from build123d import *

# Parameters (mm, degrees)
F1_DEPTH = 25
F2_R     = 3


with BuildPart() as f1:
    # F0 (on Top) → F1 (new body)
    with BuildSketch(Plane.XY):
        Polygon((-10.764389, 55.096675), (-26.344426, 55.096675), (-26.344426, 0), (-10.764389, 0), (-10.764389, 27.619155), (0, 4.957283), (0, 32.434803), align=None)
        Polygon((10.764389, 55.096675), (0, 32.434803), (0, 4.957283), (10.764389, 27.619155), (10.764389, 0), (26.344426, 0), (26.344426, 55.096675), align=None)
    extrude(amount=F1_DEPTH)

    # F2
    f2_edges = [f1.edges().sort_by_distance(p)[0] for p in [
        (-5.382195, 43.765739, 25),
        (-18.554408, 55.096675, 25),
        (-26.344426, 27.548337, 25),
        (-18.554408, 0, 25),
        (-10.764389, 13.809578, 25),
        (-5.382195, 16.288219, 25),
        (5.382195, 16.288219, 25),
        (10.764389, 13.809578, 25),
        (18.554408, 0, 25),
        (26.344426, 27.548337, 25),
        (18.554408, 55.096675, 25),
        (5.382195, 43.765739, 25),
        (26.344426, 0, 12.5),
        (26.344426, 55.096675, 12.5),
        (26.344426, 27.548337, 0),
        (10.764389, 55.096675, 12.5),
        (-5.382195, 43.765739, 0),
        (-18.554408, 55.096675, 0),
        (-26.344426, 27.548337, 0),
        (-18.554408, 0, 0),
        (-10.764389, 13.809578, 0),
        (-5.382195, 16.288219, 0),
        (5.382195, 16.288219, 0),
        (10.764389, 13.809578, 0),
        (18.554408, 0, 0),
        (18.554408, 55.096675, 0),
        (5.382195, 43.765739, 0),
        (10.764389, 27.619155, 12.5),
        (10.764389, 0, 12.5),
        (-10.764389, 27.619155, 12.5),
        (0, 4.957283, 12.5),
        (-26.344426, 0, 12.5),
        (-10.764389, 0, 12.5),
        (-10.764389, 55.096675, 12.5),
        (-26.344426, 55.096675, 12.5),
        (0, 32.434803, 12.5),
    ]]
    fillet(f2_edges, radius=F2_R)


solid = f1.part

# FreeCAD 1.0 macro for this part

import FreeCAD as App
import Part
import Sketcher

V = App.Vector

doc = App.newDocument("Part")
body = doc.addObject("PartDesign::Body", "Body")

# Sketch on XY plane
sketch1 = body.newObject("Sketcher::SketchObject", "Sketch")
sketch1.AttachmentSupport = (doc.getObject("XY_Plane"), [""])
sketch1.MapMode = "FlatFace"
sketch1.addGeometry(Part.LineSegment(V(-11, 55, 0), V(-26, 55, 0)), False)
sketch1.addGeometry(Part.LineSegment(V(-26, 55, 0), V(-26, 0, 0)), False)
sketch1.addGeometry(Part.LineSegment(V(-26, 0, 0), V(-11, 0, 0)), False)
sketch1.addGeometry(Part.LineSegment(V(-11, 0, 0), V(-11, 28, 0)), False)
sketch1.addGeometry(Part.LineSegment(V(-11, 28, 0), V(0, 5, 0)), False)
sketch1.addGeometry(Part.LineSegment(V(0, 5, 0), V(11, 28, 0)), False)
sketch1.addGeometry(Part.LineSegment(V(11, 28, 0), V(11, 0, 0)), False)
sketch1.addGeometry(Part.LineSegment(V(11, 0, 0), V(26, 0, 0)), False)
sketch1.addGeometry(Part.LineSegment(V(26, 0, 0), V(26, 55, 0)), False)
sketch1.addGeometry(Part.LineSegment(V(26, 55, 0), V(11, 55, 0)), False)
sketch1.addGeometry(Part.LineSegment(V(11, 55, 0), V(0, 32, 0)), False)
sketch1.addGeometry(Part.LineSegment(V(0, 32, 0), V(-11, 55, 0)), False)
sketch1.addConstraint(Sketcher.Constraint("Coincident", 0, 2, 1, 1))
sketch1.addConstraint(Sketcher.Constraint("Coincident", 1, 2, 2, 1))
sketch1.addConstraint(Sketcher.Constraint("Coincident", 2, 2, 3, 1))
sketch1.addConstraint(Sketcher.Constraint("Coincident", 3, 2, 4, 1))
sketch1.addConstraint(Sketcher.Constraint("Coincident", 4, 2, 5, 1))
sketch1.addConstraint(Sketcher.Constraint("Coincident", 5, 2, 6, 1))
sketch1.addConstraint(Sketcher.Constraint("Coincident", 6, 2, 7, 1))
sketch1.addConstraint(Sketcher.Constraint("Coincident", 7, 2, 8, 1))
sketch1.addConstraint(Sketcher.Constraint("Coincident", 8, 2, 9, 1))
sketch1.addConstraint(Sketcher.Constraint("Coincident", 9, 2, 10, 1))
sketch1.addConstraint(Sketcher.Constraint("Coincident", 10, 2, 11, 1))
sketch1.addConstraint(Sketcher.Constraint("Coincident", 11, 2, 0, 1))
sketch1.addConstraint(Sketcher.Constraint("Horizontal", 0))
sketch1.addConstraint(Sketcher.Constraint("Vertical", 1))
sketch1.addConstraint(Sketcher.Constraint("Horizontal", 2))
sketch1.addConstraint(Sketcher.Constraint("Vertical", 3))
sketch1.addConstraint(Sketcher.Constraint("Vertical", 6))
sketch1.addConstraint(Sketcher.Constraint("Horizontal", 7))
sketch1.addConstraint(Sketcher.Constraint("Vertical", 8))
sketch1.addConstraint(Sketcher.Constraint("Horizontal", 9))
sketch1.addConstraint(Sketcher.Constraint("Symmetric", 2, 2, 6, 2, -1, 1))
sketch1.addConstraint(Sketcher.Constraint("Symmetric", 1, 2, 7, 2, -2))
sketch1.addConstraint(Sketcher.Constraint("Symmetric", 9, 2, 11, 2, -2))
sketch1.addConstraint(Sketcher.Constraint("PointOnObject", 4, 2, -2))
sketch1.addConstraint(Sketcher.Constraint("PointOnObject", 10, 2, -2))
sketch1.addConstraint(Sketcher.Constraint("Parallel", 5, 10))
sketch1.addConstraint(Sketcher.Constraint("Parallel", 4, 11))
sketch1.addConstraint(Sketcher.Constraint("Vertical", 6, 2, 9, 2))
sketch1.addConstraint(Sketcher.Constraint("DistanceX", 0, 2, 0, 1, 15.580037))
sketch1.addConstraint(Sketcher.Constraint("DistanceY", 1, 2, 1, 1, 55.096675))
sketch1.addConstraint(Sketcher.Constraint("DistanceY", 3, 1, 3, 2, 27.619155))
sketch1.addConstraint(Sketcher.Constraint("DistanceX", 2, 2, -1, 1, 10.764389))
sketch1.addConstraint(Sketcher.Constraint("DistanceY", 4, 2, 3, 2, 22.661872))
pad1 = body.newObject("PartDesign::Pad", "Pad")
pad1.Profile = sketch1
pad1.Length = 25
doc.recompute()

fillet = body.newObject("PartDesign::Fillet", "Fillet")
fillet.Base = (pad1, ["Edge1"])
fillet.UseAllEdges = True
fillet.Radius = 3

doc.recompute()
